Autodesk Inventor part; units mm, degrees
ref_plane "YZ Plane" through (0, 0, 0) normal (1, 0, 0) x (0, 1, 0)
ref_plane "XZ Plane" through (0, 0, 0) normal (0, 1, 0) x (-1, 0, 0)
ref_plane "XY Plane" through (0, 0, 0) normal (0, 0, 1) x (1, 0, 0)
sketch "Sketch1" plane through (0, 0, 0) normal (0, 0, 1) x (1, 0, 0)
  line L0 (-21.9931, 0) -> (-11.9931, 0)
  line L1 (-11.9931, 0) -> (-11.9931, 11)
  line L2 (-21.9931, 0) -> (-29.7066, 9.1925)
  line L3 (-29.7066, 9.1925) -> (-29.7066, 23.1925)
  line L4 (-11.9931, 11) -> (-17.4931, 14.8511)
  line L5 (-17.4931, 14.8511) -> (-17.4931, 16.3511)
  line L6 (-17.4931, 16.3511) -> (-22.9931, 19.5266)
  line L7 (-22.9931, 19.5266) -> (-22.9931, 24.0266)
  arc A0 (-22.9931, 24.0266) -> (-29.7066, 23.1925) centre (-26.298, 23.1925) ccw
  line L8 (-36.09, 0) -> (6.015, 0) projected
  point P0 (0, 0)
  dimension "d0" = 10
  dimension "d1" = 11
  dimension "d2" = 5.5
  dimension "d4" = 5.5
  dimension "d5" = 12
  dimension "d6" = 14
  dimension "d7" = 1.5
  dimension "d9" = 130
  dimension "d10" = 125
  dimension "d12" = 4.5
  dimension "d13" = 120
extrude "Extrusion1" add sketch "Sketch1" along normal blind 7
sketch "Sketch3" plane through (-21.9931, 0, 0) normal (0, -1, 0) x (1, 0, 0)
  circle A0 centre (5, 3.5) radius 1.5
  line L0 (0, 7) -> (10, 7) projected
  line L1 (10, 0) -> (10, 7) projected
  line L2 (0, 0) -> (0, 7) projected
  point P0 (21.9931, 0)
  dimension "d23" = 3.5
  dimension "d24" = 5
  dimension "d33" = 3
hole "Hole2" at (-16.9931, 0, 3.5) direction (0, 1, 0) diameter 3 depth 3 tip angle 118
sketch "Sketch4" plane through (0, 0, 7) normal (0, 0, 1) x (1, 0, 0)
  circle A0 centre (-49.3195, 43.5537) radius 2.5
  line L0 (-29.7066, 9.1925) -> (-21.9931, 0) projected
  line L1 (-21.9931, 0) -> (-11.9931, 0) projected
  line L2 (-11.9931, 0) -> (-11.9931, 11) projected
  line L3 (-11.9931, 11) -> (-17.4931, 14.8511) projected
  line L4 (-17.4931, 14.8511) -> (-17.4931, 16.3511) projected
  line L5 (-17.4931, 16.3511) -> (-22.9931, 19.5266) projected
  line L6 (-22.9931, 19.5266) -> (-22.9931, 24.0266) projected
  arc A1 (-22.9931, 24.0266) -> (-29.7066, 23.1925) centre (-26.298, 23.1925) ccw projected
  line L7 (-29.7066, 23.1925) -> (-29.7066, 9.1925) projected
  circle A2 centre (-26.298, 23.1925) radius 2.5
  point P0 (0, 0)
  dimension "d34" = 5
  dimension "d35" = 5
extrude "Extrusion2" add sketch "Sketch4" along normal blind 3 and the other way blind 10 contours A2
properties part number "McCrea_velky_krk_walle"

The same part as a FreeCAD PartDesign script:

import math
import FreeCAD as App
import Part
import Sketcher
Q = App.Units.Quantity

doc = App.newDocument("Part")
body = doc.addObject("PartDesign::Body", "Body")

# Sketch on XY plane
sketch1 = body.newObject("Sketcher::SketchObject", "Sketch")
sketch1.AttachmentSupport = (doc.getObject("XY_Plane"), [""])
sketch1.MapMode = "FlatFace"
sketch1.addGeometry(Part.LineSegment(App.Vector(-29.7, 9.2, 0), App.Vector(-22, 0, 0)), False)
sketch1.addGeometry(Part.LineSegment(App.Vector(-22, 0, 0), App.Vector(-12, 0, 0)), False)
sketch1.addGeometry(Part.LineSegment(App.Vector(-12, 0, 0), App.Vector(-12, 11, 0)), False)
sketch1.addGeometry(Part.LineSegment(App.Vector(-12, 11, 0), App.Vector(-17.5, 14.9, 0)), False)
sketch1.addGeometry(Part.LineSegment(App.Vector(-17.5, 14.9, 0), App.Vector(-17.5, 16.4, 0)), False)
sketch1.addGeometry(Part.LineSegment(App.Vector(-17.5, 16.4, 0), App.Vector(-23, 19.5, 0)), False)
sketch1.addGeometry(Part.LineSegment(App.Vector(-23, 19.5, 0), App.Vector(-23, 24, 0)), False)
sketch1.addGeometry(Part.ArcOfCircle(Part.Circle(App.Vector(-26.3, 23.2, 0), App.Vector(0, 0, 1), 3.4), math.radians(14), math.radians(180)), False)
sketch1.addGeometry(Part.LineSegment(App.Vector(-29.7, 23.2, 0), App.Vector(-29.7, 9.2, 0)), False)
sketch1.addConstraint(Sketcher.Constraint("Coincident", 0, 2, 1, 1))
sketch1.addConstraint(Sketcher.Constraint("Coincident", 1, 2, 2, 1))
sketch1.addConstraint(Sketcher.Constraint("Coincident", 2, 2, 3, 1))
sketch1.addConstraint(Sketcher.Constraint("Coincident", 3, 2, 4, 1))
sketch1.addConstraint(Sketcher.Constraint("Coincident", 4, 2, 5, 1))
sketch1.addConstraint(Sketcher.Constraint("Coincident", 5, 2, 6, 1))
sketch1.addConstraint(Sketcher.Constraint("Coincident", 6, 2, 7, 1))
sketch1.addConstraint(Sketcher.Constraint("Tangent", 7, 2, 8, 1))
sketch1.addConstraint(Sketcher.Constraint("Coincident", 8, 2, 0, 1))
sketch1.addConstraint(Sketcher.Constraint("Horizontal", 1))
sketch1.addConstraint(Sketcher.Constraint("Vertical", 2))
sketch1.addConstraint(Sketcher.Constraint("Vertical", 4))
sketch1.addConstraint(Sketcher.Constraint("Vertical", 6))
sketch1.addConstraint(Sketcher.Constraint("Vertical", 8))
sketch1.addConstraint(Sketcher.Constraint("PointOnObject", 0, 2, -1))
sketch1.addConstraint(Sketcher.Constraint("DistanceX", 1, 1, 1, 2, 10.0))
sketch1.addConstraint(Sketcher.Constraint("DistanceY", 2, 1, 2, 2, 11.0))
sketch1.addConstraint(Sketcher.Constraint("DistanceY", 8, 2, 8, 1, 14.0))
sketch1.addConstraint(Sketcher.Constraint("Distance", 0, 12.0))
sketch1.addConstraint(Sketcher.Constraint("DistanceY", 4, 1, 4, 2, 1.5))
sketch1.addConstraint(Sketcher.Constraint("DistanceY", 6, 1, 6, 2, 4.5))
sketch1.addConstraint(Sketcher.Constraint("DistanceX", 5, 2, 2, 2, 11.0))
sketch1.addConstraint(Sketcher.Constraint("DistanceX", 3, 2, 2, 2, 5.5))
sketch1.addConstraint(Sketcher.Constraint("Angle", 0, Q("-49.9997 deg")))
sketch1.addConstraint(Sketcher.Constraint("Angle", 3, Q("145.0003 deg")))
sketch1.addConstraint(Sketcher.Constraint("Angle", 5, Q("149.9994 deg")))
sketch1.addConstraint(Sketcher.Constraint("DistanceX", 7, 3, -1, 1, 26.298))
pad1 = body.newObject("PartDesign::Pad", "Pad")
pad1.Profile = sketch1
pad1.Length = 7

# Sketch on XZ plane
sketch2 = body.newObject("Sketcher::SketchObject", "Sketch001")
sketch2.AttachmentSupport = (doc.getObject("XZ_Plane"), [""])
sketch2.MapMode = "FlatFace"
sketch2.addGeometry(Part.Circle(App.Vector(-17, 3.5, 0), App.Vector(0, 0, 1), 1.5), False)
sketch2.addConstraint(Sketcher.Constraint("Diameter", 0, 3.0))
sketch2.addConstraint(Sketcher.Constraint("DistanceY", -1, 1, 0, 3, 3.5))
sketch2.addConstraint(Sketcher.Constraint("DistanceX", 0, 3, -1, 1, 16.993))
doc.recompute()
hole = body.newObject("PartDesign::Hole", "Hole")
hole.Profile = sketch2
hole.ThreadType = "None"
hole.Diameter = 3
hole.DepthType = "Dimension"
hole.Depth = 3
hole.DrillPoint = "Angled"
hole.DrillPointAngle = 118

# Sketch on XY plane
sketch3 = body.newObject("Sketcher::SketchObject", "Sketch002")
sketch3.AttachmentSupport = (doc.getObject("XY_Plane"), [""])
sketch3.MapMode = "FlatFace"
sketch3.AttachmentOffset = App.Placement(App.Vector(0, 0, 7), App.Rotation())
sketch3.addGeometry(Part.Circle(App.Vector(-26.3, 23.2, 0), App.Vector(0, 0, 1), 2.5), False)
sketch3.addConstraint(Sketcher.Constraint("Diameter", 0, 5.0))
sketch3.addConstraint(Sketcher.Constraint("DistanceX", 0, 3, -1, 1, 26.298))
sketch3.addConstraint(Sketcher.Constraint("DistanceY", -1, 1, 0, 3, 23.1925))
pad2 = body.newObject("PartDesign::Pad", "Pad001")
pad2.Profile = sketch3
pad2.Type = "TwoLengths"
pad2.Length = 3
pad2.Length2 = 10

doc.recompute()
